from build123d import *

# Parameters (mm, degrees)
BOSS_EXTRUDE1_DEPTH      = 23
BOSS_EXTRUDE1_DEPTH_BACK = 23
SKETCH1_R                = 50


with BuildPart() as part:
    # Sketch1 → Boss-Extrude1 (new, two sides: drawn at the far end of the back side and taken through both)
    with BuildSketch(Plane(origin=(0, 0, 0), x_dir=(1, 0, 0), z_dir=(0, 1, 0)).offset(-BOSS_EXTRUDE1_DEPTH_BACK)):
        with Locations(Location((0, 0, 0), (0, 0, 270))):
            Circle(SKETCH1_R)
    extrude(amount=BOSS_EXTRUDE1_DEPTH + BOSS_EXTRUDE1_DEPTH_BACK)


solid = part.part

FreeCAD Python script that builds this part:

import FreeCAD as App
import Part
import Sketcher

doc = App.newDocument("Part")
body = doc.addObject("PartDesign::Body", "Body")

# Sketch on XZ plane
sketch1 = body.newObject("Sketcher::SketchObject", "Sketch")
sketch1.AttachmentSupport = (doc.getObject("XZ_Plane"), [""])
sketch1.MapMode = "FlatFace"
sketch1.addGeometry(Part.Circle(App.Vector(0, 0, 0), App.Vector(0, 0, 1), 50), False)
sketch1.addConstraint(Sketcher.Constraint("Coincident", 0, 3, -1, 1))
sketch1.addConstraint(Sketcher.Constraint("Diameter", 0, 100.0))
pad1 = body.newObject("PartDesign::Pad", "Pad")
pad1.Profile = sketch1
pad1.Type = "TwoLengths"
pad1.Length = 23
pad1.Length2 = 23
pad1.Reversed = True

doc.recompute()
